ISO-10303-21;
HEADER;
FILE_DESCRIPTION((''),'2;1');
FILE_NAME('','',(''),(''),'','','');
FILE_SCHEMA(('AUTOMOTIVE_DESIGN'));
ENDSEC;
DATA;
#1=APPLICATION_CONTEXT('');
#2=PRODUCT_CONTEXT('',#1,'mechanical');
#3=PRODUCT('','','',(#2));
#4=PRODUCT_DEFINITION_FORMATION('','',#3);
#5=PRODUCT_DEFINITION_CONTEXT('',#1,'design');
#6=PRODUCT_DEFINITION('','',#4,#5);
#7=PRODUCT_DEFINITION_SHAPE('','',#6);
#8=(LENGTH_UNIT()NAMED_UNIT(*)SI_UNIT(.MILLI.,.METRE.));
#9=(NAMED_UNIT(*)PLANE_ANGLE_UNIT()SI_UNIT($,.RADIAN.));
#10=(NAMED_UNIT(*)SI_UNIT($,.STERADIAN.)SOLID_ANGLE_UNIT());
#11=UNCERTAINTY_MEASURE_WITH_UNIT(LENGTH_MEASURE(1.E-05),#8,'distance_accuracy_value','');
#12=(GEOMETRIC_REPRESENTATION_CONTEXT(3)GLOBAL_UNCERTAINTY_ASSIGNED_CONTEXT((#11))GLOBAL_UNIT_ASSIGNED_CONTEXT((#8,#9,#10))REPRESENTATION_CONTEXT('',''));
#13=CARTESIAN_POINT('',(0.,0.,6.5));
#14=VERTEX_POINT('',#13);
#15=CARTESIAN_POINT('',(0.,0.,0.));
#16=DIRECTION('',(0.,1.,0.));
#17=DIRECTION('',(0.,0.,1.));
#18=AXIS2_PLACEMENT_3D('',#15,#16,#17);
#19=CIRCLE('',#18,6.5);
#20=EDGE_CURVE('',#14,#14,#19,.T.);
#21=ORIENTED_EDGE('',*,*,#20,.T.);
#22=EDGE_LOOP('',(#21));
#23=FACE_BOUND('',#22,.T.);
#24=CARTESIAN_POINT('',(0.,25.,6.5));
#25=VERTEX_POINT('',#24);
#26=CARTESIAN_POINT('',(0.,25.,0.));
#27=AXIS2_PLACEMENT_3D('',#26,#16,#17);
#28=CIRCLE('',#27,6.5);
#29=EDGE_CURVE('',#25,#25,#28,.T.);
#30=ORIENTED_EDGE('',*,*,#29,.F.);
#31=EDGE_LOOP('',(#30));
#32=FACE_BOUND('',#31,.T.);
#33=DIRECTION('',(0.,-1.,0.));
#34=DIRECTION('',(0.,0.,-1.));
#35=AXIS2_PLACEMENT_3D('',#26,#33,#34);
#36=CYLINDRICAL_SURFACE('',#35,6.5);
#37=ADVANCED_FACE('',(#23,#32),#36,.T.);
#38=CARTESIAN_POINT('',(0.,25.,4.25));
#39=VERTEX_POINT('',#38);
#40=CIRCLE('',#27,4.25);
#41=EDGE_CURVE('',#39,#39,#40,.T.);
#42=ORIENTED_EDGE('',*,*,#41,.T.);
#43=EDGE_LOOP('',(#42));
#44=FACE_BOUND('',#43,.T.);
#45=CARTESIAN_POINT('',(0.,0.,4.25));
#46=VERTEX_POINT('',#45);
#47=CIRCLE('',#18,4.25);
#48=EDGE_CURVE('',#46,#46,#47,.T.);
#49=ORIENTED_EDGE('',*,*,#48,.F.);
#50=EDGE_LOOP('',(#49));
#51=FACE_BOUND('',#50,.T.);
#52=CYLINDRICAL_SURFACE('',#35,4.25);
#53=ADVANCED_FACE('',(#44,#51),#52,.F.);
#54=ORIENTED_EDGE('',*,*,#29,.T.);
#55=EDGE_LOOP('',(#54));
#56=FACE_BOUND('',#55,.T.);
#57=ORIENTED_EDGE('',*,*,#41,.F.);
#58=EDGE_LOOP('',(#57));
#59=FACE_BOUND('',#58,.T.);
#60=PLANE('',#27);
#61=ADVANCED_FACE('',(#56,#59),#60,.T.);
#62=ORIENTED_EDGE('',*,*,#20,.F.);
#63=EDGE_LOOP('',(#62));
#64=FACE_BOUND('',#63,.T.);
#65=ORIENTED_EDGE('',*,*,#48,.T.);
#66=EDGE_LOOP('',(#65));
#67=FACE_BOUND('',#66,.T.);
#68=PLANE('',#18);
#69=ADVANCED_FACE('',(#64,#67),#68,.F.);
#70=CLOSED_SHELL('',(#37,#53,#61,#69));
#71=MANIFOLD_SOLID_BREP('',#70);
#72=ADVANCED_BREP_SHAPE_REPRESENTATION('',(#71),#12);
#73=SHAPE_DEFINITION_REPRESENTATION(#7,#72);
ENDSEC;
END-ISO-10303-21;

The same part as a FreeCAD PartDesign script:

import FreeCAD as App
import Part
import Sketcher

V = App.Vector

doc = App.newDocument("Part")
body = doc.addObject("PartDesign::Body", "Body")

sketch1 = body.newObject("Sketcher::SketchObject", "Sketch")
sketch1.AttachmentSupport = (doc.getObject("XZ_Plane"), [""])
sketch1.MapMode = "FlatFace"
sketch1.addGeometry([
    Part.Circle(V(0, 0, 0), V(0, 0, 1), 6.5),
    Part.Circle(V(0, 0, 0), V(0, 0, 1), 4.2),
], False)
sketch1.addConstraint([
    Sketcher.Constraint("Coincident", 0, 3, -1, 1),
    Sketcher.Constraint("Coincident", 1, 3, -1, 1),
    Sketcher.Constraint("Diameter", 0, 13.0),
    Sketcher.Constraint("Diameter", 1, 8.5),
])
pad1 = body.newObject("PartDesign::Pad", "Pad")
pad1.Profile = sketch1
pad1.Length = 25
pad1.Reversed = True

doc.recompute()
